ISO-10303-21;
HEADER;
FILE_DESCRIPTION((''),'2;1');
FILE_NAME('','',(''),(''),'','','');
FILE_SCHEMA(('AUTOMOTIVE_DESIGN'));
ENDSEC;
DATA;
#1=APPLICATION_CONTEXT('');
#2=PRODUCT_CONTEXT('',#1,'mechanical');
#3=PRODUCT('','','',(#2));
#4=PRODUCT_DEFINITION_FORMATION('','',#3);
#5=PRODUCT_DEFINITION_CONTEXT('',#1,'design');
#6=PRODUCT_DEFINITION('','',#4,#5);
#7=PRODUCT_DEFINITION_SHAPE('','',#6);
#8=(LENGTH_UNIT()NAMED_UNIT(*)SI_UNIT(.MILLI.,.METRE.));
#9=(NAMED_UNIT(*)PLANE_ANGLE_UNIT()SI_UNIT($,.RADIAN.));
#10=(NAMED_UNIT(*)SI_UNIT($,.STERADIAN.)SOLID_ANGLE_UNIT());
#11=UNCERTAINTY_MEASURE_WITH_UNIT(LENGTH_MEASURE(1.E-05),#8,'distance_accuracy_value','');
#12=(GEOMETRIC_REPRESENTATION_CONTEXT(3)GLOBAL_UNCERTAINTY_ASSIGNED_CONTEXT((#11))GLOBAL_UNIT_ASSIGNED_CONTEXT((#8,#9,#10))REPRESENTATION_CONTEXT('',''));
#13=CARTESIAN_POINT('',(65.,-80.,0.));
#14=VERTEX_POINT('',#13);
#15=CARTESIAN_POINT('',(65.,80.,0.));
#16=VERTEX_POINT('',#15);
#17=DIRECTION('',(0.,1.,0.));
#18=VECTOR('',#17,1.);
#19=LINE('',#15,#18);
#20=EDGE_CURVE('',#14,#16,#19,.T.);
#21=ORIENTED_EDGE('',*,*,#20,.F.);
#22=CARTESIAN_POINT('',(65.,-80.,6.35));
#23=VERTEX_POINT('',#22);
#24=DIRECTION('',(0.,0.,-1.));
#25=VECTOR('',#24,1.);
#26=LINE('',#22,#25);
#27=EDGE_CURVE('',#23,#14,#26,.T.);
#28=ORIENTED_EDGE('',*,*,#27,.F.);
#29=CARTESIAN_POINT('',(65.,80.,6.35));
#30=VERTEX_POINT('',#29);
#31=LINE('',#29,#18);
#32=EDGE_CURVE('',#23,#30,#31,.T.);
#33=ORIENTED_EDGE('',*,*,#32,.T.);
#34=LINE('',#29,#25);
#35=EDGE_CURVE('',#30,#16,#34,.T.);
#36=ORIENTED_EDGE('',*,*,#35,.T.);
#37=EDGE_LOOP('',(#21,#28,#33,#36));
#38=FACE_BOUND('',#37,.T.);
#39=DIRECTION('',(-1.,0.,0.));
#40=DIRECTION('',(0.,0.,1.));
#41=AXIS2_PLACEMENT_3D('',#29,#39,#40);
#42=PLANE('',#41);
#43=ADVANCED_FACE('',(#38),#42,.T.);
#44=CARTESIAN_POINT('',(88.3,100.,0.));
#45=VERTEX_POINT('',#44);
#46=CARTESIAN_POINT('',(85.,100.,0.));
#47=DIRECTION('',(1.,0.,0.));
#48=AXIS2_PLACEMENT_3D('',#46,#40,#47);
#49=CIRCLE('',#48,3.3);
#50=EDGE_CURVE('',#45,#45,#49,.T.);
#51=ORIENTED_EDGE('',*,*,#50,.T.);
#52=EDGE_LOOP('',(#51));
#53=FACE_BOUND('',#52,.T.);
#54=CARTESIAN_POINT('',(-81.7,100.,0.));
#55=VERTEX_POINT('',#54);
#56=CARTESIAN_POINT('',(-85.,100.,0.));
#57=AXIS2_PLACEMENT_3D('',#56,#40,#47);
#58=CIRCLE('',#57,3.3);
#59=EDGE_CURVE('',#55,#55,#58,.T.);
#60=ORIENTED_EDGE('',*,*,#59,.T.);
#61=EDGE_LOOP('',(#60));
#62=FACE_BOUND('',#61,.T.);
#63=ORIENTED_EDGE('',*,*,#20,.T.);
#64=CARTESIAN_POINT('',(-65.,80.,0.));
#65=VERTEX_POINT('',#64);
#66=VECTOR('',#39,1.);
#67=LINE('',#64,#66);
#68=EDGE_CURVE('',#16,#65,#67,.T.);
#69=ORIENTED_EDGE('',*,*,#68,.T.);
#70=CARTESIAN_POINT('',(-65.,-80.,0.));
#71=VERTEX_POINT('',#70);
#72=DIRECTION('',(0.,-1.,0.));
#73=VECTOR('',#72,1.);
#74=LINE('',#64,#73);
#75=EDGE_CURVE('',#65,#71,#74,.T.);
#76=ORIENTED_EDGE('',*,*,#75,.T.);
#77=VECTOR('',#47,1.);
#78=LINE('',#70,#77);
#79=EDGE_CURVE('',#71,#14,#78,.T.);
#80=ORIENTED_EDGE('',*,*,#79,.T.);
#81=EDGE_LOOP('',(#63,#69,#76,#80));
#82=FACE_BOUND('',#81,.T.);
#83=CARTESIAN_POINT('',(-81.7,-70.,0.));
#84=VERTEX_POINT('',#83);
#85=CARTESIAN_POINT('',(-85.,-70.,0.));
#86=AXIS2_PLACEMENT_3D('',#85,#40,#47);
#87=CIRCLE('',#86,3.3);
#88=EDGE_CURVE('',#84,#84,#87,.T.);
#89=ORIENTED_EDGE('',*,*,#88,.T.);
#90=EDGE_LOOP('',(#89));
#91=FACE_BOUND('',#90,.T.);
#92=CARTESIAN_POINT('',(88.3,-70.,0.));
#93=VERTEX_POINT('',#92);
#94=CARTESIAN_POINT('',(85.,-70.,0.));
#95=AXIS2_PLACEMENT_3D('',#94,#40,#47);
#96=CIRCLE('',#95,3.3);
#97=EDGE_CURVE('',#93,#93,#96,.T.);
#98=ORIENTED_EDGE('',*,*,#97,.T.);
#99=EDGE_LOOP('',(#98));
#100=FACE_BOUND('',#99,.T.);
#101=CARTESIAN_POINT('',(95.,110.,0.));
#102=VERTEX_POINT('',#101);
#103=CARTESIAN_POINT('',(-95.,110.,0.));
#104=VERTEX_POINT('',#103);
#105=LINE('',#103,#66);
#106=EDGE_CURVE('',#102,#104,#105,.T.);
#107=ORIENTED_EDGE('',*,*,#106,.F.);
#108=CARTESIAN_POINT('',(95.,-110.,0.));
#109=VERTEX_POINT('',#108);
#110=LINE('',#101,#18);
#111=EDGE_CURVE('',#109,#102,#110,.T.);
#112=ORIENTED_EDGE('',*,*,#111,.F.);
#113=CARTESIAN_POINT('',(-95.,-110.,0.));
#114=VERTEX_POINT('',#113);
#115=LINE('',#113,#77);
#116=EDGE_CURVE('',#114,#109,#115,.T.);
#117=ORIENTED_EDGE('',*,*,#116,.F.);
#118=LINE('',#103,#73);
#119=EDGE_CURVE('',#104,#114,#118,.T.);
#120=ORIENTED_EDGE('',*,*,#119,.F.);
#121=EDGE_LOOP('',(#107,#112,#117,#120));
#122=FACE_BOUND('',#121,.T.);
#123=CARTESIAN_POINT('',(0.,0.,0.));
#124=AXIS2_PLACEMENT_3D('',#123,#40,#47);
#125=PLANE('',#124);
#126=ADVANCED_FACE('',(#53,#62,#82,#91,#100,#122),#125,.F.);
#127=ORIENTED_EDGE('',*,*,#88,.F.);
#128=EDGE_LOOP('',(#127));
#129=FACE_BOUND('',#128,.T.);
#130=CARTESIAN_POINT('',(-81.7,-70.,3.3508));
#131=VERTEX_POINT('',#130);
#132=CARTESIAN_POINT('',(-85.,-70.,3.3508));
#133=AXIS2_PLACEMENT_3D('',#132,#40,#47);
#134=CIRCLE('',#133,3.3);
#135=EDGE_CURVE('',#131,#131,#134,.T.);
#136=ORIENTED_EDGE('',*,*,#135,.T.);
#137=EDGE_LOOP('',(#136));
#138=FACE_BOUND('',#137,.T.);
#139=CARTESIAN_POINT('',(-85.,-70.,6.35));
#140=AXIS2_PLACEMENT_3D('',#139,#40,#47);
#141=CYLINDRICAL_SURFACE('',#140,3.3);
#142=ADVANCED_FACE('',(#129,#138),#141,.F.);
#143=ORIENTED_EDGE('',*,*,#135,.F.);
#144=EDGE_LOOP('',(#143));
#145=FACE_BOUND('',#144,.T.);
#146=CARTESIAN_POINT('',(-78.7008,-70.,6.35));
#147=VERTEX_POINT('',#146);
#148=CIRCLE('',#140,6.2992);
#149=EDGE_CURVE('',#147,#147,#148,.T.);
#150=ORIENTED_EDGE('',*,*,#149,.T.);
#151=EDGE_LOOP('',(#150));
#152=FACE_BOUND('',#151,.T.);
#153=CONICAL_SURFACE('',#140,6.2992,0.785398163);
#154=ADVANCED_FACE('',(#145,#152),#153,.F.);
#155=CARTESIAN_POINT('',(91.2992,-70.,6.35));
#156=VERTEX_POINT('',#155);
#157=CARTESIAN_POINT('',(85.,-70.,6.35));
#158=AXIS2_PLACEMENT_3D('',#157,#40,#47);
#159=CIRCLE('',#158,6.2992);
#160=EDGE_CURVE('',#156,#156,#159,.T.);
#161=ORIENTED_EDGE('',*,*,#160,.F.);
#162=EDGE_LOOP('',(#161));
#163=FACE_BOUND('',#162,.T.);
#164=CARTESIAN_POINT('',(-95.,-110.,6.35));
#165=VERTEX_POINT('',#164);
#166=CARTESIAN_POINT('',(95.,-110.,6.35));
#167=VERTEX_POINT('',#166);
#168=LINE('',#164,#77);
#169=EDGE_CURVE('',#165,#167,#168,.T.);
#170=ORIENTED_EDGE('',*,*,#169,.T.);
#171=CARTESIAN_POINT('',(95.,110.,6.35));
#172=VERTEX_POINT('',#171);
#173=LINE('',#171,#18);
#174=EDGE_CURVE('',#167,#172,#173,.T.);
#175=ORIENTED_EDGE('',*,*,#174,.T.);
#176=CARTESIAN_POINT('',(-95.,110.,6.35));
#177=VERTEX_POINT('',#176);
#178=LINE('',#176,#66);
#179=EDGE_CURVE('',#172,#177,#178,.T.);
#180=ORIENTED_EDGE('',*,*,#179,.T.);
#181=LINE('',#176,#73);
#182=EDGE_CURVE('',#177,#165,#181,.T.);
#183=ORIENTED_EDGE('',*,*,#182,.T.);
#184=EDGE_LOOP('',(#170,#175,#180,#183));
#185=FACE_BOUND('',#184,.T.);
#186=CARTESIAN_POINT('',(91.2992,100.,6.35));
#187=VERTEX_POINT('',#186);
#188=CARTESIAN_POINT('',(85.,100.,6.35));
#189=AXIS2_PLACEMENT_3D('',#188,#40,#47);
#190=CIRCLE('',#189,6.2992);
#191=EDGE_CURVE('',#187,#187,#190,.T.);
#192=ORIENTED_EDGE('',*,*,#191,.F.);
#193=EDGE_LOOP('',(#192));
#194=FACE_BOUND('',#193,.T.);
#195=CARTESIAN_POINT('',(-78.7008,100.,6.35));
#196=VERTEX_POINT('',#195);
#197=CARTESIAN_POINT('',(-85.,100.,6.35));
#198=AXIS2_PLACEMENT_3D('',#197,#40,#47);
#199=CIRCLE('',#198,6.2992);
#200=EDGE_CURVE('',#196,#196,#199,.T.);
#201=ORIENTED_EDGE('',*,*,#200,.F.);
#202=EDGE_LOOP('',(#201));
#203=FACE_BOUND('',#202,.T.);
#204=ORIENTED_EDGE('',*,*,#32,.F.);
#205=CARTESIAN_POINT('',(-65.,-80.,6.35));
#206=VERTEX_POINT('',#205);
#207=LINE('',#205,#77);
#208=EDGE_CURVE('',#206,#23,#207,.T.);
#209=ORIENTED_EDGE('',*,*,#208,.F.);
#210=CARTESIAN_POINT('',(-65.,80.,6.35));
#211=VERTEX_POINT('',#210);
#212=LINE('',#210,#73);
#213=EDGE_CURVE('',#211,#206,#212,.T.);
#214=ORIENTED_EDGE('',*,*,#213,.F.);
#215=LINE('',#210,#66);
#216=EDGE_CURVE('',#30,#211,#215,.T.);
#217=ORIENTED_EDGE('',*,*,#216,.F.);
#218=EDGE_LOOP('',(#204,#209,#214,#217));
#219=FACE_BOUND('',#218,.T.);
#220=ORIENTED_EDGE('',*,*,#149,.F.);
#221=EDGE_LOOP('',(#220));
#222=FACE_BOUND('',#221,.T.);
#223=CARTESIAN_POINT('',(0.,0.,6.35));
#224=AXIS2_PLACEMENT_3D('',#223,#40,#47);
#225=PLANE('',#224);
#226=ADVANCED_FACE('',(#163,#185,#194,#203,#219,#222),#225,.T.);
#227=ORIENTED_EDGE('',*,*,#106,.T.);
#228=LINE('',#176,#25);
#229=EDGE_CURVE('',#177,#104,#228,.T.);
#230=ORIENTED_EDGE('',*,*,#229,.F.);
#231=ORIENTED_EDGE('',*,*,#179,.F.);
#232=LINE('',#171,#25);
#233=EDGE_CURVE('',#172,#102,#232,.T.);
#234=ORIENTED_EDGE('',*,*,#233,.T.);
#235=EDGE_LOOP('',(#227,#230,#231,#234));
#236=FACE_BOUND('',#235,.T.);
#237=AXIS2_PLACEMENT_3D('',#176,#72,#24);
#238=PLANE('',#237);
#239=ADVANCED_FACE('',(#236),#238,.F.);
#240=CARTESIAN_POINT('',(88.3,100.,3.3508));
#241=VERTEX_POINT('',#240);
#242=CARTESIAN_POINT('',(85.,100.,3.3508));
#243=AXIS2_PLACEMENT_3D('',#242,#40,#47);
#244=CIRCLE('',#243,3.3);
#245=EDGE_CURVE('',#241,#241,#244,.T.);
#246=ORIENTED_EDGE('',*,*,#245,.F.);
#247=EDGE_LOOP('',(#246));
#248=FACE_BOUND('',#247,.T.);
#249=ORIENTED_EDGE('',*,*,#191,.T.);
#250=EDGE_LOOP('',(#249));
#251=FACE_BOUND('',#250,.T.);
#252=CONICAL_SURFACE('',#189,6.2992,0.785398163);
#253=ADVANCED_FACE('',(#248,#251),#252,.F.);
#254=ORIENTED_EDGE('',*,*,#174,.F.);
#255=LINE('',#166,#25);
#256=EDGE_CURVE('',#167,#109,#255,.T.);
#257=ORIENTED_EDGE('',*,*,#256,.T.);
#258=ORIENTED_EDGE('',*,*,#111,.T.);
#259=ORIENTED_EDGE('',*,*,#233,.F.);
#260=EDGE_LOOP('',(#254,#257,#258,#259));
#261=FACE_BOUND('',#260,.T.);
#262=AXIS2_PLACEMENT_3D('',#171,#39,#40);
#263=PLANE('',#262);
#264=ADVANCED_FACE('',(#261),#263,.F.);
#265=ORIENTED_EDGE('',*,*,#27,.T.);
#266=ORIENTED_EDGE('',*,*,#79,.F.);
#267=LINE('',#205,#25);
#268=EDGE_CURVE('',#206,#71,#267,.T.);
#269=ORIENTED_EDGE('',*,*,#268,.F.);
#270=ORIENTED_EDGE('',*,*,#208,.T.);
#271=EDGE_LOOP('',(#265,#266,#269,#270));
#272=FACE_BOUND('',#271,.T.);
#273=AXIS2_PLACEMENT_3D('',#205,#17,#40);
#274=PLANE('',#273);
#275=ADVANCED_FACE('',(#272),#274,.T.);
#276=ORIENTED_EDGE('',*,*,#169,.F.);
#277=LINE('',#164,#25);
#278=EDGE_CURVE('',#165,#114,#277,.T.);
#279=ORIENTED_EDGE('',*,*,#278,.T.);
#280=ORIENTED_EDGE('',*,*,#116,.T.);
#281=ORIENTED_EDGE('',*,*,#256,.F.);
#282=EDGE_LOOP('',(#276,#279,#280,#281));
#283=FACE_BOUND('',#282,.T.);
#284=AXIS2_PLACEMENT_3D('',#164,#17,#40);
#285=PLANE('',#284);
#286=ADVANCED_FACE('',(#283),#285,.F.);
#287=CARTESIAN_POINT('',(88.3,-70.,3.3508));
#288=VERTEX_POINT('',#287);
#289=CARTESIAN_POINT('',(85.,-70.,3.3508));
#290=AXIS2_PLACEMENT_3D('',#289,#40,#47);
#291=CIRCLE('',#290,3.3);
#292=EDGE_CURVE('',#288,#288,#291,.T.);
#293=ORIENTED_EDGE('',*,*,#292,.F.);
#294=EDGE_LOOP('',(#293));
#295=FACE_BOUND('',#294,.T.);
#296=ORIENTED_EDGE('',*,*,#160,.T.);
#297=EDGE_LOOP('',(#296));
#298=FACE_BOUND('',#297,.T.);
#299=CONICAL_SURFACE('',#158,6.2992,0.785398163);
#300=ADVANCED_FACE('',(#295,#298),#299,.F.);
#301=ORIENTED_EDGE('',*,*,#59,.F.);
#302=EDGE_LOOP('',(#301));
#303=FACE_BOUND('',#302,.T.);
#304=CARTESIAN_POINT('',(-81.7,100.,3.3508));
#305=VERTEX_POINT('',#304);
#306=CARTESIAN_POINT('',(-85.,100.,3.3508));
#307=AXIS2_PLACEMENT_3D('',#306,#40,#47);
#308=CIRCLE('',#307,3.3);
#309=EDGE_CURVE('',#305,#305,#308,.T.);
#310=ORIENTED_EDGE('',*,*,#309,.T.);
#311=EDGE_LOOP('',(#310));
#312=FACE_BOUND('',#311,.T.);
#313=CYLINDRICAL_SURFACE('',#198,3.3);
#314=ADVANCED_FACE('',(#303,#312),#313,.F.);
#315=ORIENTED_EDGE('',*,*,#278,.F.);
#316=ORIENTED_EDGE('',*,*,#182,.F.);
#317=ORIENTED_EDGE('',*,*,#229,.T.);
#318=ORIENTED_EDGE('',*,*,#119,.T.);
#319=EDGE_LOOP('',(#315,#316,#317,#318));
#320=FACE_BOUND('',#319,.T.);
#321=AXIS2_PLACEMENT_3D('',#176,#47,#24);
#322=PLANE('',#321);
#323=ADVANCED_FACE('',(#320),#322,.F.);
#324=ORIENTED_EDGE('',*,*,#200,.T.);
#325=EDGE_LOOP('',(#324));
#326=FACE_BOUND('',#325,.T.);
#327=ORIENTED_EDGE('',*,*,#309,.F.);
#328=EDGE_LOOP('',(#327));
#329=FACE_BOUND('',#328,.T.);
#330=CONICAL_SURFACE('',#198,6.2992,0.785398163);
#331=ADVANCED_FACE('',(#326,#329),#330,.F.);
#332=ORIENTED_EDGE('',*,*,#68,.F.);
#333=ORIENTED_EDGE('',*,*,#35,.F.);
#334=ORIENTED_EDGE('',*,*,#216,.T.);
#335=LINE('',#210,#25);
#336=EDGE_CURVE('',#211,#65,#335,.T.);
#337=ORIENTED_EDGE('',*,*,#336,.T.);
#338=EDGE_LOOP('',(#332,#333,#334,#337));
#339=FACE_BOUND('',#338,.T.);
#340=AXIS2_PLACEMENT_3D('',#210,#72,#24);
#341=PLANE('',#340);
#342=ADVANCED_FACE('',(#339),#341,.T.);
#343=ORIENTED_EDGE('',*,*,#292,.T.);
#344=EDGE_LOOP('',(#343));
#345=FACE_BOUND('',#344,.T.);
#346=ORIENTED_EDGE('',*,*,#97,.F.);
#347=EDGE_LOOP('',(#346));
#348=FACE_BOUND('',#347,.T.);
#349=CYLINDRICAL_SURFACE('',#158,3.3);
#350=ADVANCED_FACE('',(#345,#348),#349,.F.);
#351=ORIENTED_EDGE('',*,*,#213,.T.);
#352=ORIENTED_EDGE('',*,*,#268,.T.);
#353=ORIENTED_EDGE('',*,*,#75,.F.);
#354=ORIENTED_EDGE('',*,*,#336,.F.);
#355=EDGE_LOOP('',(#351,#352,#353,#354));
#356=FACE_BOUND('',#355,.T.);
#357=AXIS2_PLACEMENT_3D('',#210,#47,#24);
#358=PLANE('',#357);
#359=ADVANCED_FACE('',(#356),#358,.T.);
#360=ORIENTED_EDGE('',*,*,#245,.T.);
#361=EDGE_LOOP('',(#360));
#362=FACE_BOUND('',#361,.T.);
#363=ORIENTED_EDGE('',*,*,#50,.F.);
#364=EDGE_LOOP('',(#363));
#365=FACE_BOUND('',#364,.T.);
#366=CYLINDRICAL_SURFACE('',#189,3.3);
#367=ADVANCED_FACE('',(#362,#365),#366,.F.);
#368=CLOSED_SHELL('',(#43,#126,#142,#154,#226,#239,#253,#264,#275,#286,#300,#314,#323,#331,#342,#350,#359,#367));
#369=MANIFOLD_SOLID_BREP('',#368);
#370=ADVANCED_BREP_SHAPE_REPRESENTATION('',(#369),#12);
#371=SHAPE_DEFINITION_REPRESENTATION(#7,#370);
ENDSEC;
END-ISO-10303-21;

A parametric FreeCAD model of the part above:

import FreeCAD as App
import Part
import Sketcher
Q = App.Units.Quantity

doc = App.newDocument("Part")
params = doc.addObject("Spreadsheet::Sheet", "Params")
for row, (alias, value) in enumerate([
    ("sketch1_width", "190 mm"),
    ("sketch1_width2", "130 mm"),
    ("sketch1_height", "220 mm"),
    ("sketch1_height2", "160 mm"),
    ("pad1_length", "6.35 mm"),
    ("sketch2_diameter", "6.6 mm"),
    ("hole_diameter", "6.6 mm"),
    ("hole_depth", "45 mm"),
    ("hole_csink_diameter", "12.5984 mm"),
], start=1):
    params.set(f"A{row}", alias)
    params.set(f"B{row}", "=" + value)
    params.setAlias(f"B{row}", alias)

body = doc.addObject("PartDesign::Body", "Body")

sketch1 = doc.addObject("Sketcher::SketchObject", "Sketch")
body.addObject(sketch1)
sketch1.AttachmentSupport = (doc.XY_Plane, [""])
sketch1.MapMode = "FlatFace"
sketch1.addGeometry([
    Part.LineSegment(App.Vector(-95, 110, 0), App.Vector(-95, -110, 0)),
    Part.LineSegment(App.Vector(-95, -110, 0), App.Vector(95, -110, 0)),
    Part.LineSegment(App.Vector(95, -110, 0), App.Vector(95, 110, 0)),
    Part.LineSegment(App.Vector(95, 110, 0), App.Vector(-95, 110, 0)),
    Part.LineSegment(App.Vector(65, -80, 0), App.Vector(-65, -80, 0)),
    Part.LineSegment(App.Vector(-65, -80, 0), App.Vector(-65, 80, 0)),
    Part.LineSegment(App.Vector(-65, 80, 0), App.Vector(65, 80, 0)),
    Part.LineSegment(App.Vector(65, 80, 0), App.Vector(65, -80, 0)),
], False)
sketch1.addConstraint([
    Sketcher.Constraint("Coincident", 0, 2, 1, 1),
    Sketcher.Constraint("Coincident", 1, 2, 2, 1),
    Sketcher.Constraint("Coincident", 2, 2, 3, 1),
    Sketcher.Constraint("Coincident", 3, 2, 0, 1),
    Sketcher.Constraint("Coincident", 4, 2, 5, 1),
    Sketcher.Constraint("Coincident", 5, 2, 6, 1),
    Sketcher.Constraint("Coincident", 6, 2, 7, 1),
    Sketcher.Constraint("Coincident", 7, 2, 4, 1),
    Sketcher.Constraint("Vertical", 0),
    Sketcher.Constraint("Horizontal", 1),
    Sketcher.Constraint("Vertical", 2),
    Sketcher.Constraint("Horizontal", 3),
    Sketcher.Constraint("Horizontal", 4),
    Sketcher.Constraint("Vertical", 5),
    Sketcher.Constraint("Horizontal", 6),
    Sketcher.Constraint("Vertical", 7),
    Sketcher.Constraint("Symmetric", 0, 2, 2, 2, -1, 1),
    Sketcher.Constraint("Symmetric", 4, 2, 6, 2, -1, 1),
    Sketcher.Constraint("DistanceX", 1, 1, 1, 2, Q("190 mm")),
    Sketcher.Constraint("DistanceX", 4, 2, 4, 1, Q("130 mm")),
    Sketcher.Constraint("DistanceY", 0, 2, 0, 1, Q("220 mm")),
    Sketcher.Constraint("DistanceY", 5, 1, 5, 2, Q("160 mm")),
])
sketch1.setExpression("Constraints[18]", "Params.sketch1_width")
sketch1.setExpression("Constraints[19]", "Params.sketch1_width2")
sketch1.setExpression("Constraints[20]", "Params.sketch1_height")
sketch1.setExpression("Constraints[21]", "Params.sketch1_height2")
pad1 = doc.addObject("PartDesign::Pad", "Pad")
body.addObject(pad1)
pad1.Profile = sketch1
pad1.setExpression("Length", "Params.pad1_length")

sketch2 = doc.addObject("Sketcher::SketchObject", "Sketch001")
body.addObject(sketch2)
sketch2.AttachmentSupport = (doc.XY_Plane, [""])
sketch2.MapMode = "FlatFace"
sketch2.AttachmentOffset = App.Placement(App.Vector(0, 0, 6.35), App.Rotation())
sketch2.addGeometry([
    Part.Circle(App.Vector(-85, -70, 0), App.Vector(0, 0, 1), 3.3),
    Part.Circle(App.Vector(-85, 100, 0), App.Vector(0, 0, 1), 3.3),
    Part.Circle(App.Vector(85, 100, 0), App.Vector(0, 0, 1), 3.3),
    Part.Circle(App.Vector(85, -70, 0), App.Vector(0, 0, 1), 3.3),
], False)
sketch2.addConstraint([
    Sketcher.Constraint("Equal", 0, 1),
    Sketcher.Constraint("Equal", 1, 2),
    Sketcher.Constraint("Equal", 2, 3),
    Sketcher.Constraint("Symmetric", 1, 3, 2, 3, -2),
    Sketcher.Constraint("Symmetric", 0, 3, 3, 3, -2),
    Sketcher.Constraint("Vertical", 0, 3, 1, 3),
    Sketcher.Constraint("Diameter", 0, Q("6.6 mm")),
    Sketcher.Constraint("DistanceX", 0, 3, -1, 1, Q("85 mm")),
    Sketcher.Constraint("DistanceY", 0, 3, -1, 1, Q("70 mm")),
    Sketcher.Constraint("DistanceY", -1, 1, 1, 3, Q("100 mm")),
])
sketch2.setExpression("Constraints[6]", "Params.sketch2_diameter")
doc.recompute()
hole = doc.addObject("PartDesign::Hole", "Hole")
body.addObject(hole)
hole.Profile = sketch2
hole.ThreadType = "None"
hole.setExpression("Diameter", "Params.hole_diameter")
hole.DepthType = "Dimension"
hole.setExpression("Depth", "Params.hole_depth")
hole.DrillPoint = "Angled"
hole.DrillPointAngle = 118
hole.HoleCutType = "Countersink"
hole.setExpression("HoleCutDiameter", "Params.hole_csink_diameter")
hole.HoleCutCountersinkAngle = 90

doc.recompute()
